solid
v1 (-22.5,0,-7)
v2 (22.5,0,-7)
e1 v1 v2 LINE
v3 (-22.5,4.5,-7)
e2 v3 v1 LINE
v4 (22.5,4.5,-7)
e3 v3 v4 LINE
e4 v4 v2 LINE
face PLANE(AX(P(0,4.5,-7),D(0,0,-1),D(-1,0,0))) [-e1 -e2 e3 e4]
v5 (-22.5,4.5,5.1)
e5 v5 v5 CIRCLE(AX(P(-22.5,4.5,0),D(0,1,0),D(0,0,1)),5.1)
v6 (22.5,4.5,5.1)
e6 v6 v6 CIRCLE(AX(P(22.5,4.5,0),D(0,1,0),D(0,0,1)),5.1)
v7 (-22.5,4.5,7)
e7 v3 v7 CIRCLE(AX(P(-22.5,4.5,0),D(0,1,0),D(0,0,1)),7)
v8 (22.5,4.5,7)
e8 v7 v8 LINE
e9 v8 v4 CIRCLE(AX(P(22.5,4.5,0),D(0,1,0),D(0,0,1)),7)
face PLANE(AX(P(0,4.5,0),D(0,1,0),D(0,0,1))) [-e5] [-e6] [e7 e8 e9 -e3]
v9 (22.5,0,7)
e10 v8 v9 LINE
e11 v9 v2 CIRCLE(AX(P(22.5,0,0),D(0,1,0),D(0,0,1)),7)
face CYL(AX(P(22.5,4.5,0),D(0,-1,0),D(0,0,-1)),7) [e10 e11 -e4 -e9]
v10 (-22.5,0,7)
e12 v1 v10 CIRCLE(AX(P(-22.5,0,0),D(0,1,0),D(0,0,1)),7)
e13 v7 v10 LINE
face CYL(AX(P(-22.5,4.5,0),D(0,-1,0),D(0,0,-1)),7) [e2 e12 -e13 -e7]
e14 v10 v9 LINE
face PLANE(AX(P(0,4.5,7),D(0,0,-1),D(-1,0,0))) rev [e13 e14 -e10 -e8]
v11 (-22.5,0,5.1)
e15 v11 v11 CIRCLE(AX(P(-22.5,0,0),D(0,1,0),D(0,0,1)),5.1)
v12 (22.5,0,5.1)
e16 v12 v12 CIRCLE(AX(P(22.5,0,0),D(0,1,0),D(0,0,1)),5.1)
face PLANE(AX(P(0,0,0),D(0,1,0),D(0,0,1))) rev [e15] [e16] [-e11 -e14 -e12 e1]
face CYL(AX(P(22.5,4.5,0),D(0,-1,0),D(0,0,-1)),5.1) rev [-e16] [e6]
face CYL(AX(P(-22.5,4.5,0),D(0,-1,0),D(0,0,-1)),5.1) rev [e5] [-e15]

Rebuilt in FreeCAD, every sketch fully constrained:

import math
import FreeCAD as App
import Part
import Sketcher
from FreeCAD import Vector

doc = App.newDocument("Part")
body = doc.addObject("PartDesign::Body", "Body")

# Sketch on XZ plane
sketch1 = body.newObject("Sketcher::SketchObject", "Sketch")
sketch1.AttachmentSupport = (doc.getObject("XZ_Plane"), [""])
sketch1.MapMode = "FlatFace"
sketch1.addGeometry(Part.LineSegment(Vector(-22, 7, 0), Vector(22, 7, 0)), False)
sketch1.addGeometry(Part.ArcOfCircle(Part.Circle(Vector(22, 0, 0), Vector(0, 0, 1), 7), math.radians(0), math.radians(90)), False)
sketch1.addGeometry(Part.ArcOfCircle(Part.Circle(Vector(22, 0, 0), Vector(0, 0, 1), 7), math.radians(-90), math.radians(0)), False)
sketch1.addGeometry(Part.LineSegment(Vector(22, -7, 0), Vector(-22, -7, 0)), False)
sketch1.addGeometry(Part.ArcOfCircle(Part.Circle(Vector(-22, 0, 0), Vector(0, 0, 1), 7), math.radians(90), math.radians(270)), False)
sketch1.addGeometry(Part.ArcOfCircle(Part.Circle(Vector(22, 0, 0), Vector(0, 0, 1), 5), math.radians(90), math.radians(270)), False)
sketch1.addGeometry(Part.ArcOfCircle(Part.Circle(Vector(22, 0, 0), Vector(0, 0, 1), 5), math.radians(-90), math.radians(0)), False)
sketch1.addGeometry(Part.ArcOfCircle(Part.Circle(Vector(22, 0, 0), Vector(0, 0, 1), 5), math.radians(0), math.radians(90)), False)
sketch1.addGeometry(Part.ArcOfCircle(Part.Circle(Vector(-22, 0, 0), Vector(0, 0, 1), 5), math.radians(90), math.radians(270)), False)
sketch1.addGeometry(Part.ArcOfCircle(Part.Circle(Vector(-22, 0, 0), Vector(0, 0, 1), 5), math.radians(-90), math.radians(0)), False)
sketch1.addGeometry(Part.ArcOfCircle(Part.Circle(Vector(-22, 0, 0), Vector(0, 0, 1), 5), math.radians(0), math.radians(90)), False)
sketch1.addConstraint(Sketcher.Constraint("Tangent", 0, 2, 1, 2))
sketch1.addConstraint(Sketcher.Constraint("Tangent", 1, 1, 2, 2))
sketch1.addConstraint(Sketcher.Constraint("Tangent", 2, 1, 3, 1))
sketch1.addConstraint(Sketcher.Constraint("Tangent", 3, 2, 4, 2))
sketch1.addConstraint(Sketcher.Constraint("Tangent", 4, 1, 0, 1))
sketch1.addConstraint(Sketcher.Constraint("Tangent", 5, 2, 6, 1))
sketch1.addConstraint(Sketcher.Constraint("Tangent", 6, 2, 7, 1))
sketch1.addConstraint(Sketcher.Constraint("Tangent", 7, 2, 5, 1))
sketch1.addConstraint(Sketcher.Constraint("Tangent", 8, 2, 9, 1))
sketch1.addConstraint(Sketcher.Constraint("Tangent", 9, 2, 10, 1))
sketch1.addConstraint(Sketcher.Constraint("Tangent", 10, 2, 8, 1))
sketch1.addConstraint(Sketcher.Constraint("Horizontal", 0))
sketch1.addConstraint(Sketcher.Constraint("Horizontal", 3))
sketch1.addConstraint(Sketcher.Constraint("Coincident", 5, 3, 1, 3))
sketch1.addConstraint(Sketcher.Constraint("Coincident", 8, 3, 4, 3))
sketch1.addConstraint(Sketcher.Constraint("Equal", 1, 2))
sketch1.addConstraint(Sketcher.Constraint("Equal", 7, 8))
sketch1.addConstraint(Sketcher.Constraint("Symmetric", 1, 3, 4, 3, -1, 1))
sketch1.addConstraint(Sketcher.Constraint("PointOnObject", 1, 1, -1))
sketch1.addConstraint(Sketcher.Constraint("PointOnObject", 6, 2, -1))
sketch1.addConstraint(Sketcher.Constraint("PointOnObject", 9, 2, -1))
sketch1.addConstraint(Sketcher.Constraint("Vertical", 2, 1, 5, 2))
sketch1.addConstraint(Sketcher.Constraint("Vertical", 5, 2, 7, 2))
sketch1.addConstraint(Sketcher.Constraint("Vertical", 4, 1, 8, 2))
sketch1.addConstraint(Sketcher.Constraint("Vertical", 8, 2, 10, 2))
sketch1.addConstraint(Sketcher.Constraint("Radius", 1, 7.0))
sketch1.addConstraint(Sketcher.Constraint("Radius", 5, 5.1))
sketch1.addConstraint(Sketcher.Constraint("DistanceX", 0, 1, 0, 2, 45.0))
pad1 = body.newObject("PartDesign::Pad", "Pad")
pad1.Profile = sketch1
pad1.Length = 4.5
pad1.Reversed = True

doc.recompute()
